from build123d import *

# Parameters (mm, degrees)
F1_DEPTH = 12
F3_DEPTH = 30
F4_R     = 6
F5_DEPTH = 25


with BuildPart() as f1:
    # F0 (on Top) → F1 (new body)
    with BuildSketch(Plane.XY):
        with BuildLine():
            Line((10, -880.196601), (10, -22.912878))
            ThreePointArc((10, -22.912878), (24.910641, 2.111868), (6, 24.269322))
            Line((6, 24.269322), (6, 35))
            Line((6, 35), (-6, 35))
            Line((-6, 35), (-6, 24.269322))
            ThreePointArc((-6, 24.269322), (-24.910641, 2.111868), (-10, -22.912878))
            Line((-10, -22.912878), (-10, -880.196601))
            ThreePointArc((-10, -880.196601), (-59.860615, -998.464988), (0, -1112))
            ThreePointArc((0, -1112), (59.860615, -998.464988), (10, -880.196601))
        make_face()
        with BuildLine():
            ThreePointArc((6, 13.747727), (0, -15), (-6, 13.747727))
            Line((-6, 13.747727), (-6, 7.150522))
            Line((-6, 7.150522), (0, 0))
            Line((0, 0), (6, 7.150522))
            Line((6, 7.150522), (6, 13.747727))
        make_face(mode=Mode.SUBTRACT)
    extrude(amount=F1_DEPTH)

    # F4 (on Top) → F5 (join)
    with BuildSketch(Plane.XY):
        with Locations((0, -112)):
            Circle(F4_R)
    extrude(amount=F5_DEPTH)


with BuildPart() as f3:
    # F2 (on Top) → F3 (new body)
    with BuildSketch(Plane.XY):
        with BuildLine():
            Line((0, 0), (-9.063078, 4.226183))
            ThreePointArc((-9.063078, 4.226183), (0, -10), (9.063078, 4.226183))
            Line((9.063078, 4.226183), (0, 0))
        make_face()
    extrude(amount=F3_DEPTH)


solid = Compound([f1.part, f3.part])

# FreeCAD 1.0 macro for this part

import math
import FreeCAD as App
import Part
import Sketcher
Q = App.Units.Quantity

doc = App.newDocument("Part")
params = doc.addObject("Spreadsheet::Sheet", "Params")
for row, (alias, value) in enumerate([
    ("sketch1_radius", "24.999999 mm"),
    ("sketch1_radius2", "150 mm"),
    ("sketch1_radius3", "15 mm"),
    ("sketch1_width", "12 mm"),
    ("pad1_length", "12 mm"),
    ("sketch2_diameter", "12 mm"),
    ("pad2_length", "25 mm"),
    ("sketch3_radius", "10 mm"),
    ("pad3_length", "30 mm"),
], start=1):
    params.set(f"A{row}", alias)
    params.set(f"B{row}", "=" + value)
    params.setAlias(f"B{row}", alias)

body = doc.addObject("PartDesign::Body", "Body")

sketch1 = body.newObject("Sketcher::SketchObject", "Sketch")
sketch1.AttachmentSupport = (doc.getObject("XY_Plane"), [""])
sketch1.MapMode = "FlatFace"
sketch1.addGeometry([
    Part.LineSegment(App.Vector(10, -880, 0), App.Vector(10, -23, 0)),
    Part.ArcOfCircle(Part.Circle(App.Vector(0, 0, 0), App.Vector(0, 0, 1), 25), math.radians(-66), math.radians(76)),
    Part.LineSegment(App.Vector(6, 24, 0), App.Vector(6, 35, 0)),
    Part.LineSegment(App.Vector(6, 35, 0), App.Vector(-6, 35, 0)),
    Part.LineSegment(App.Vector(-6, 35, 0), App.Vector(-6, 24, 0)),
    Part.ArcOfCircle(Part.Circle(App.Vector(0, 0, 0), App.Vector(0, 0, 1), 25), math.radians(104), math.radians(246)),
    Part.LineSegment(App.Vector(-10, -23, 0), App.Vector(-10, -880, 0)),
    Part.ArcOfCircle(Part.Circle(App.Vector(90, -992, 0), App.Vector(0, 0, 1), 150), math.radians(132), math.radians(233)),
    Part.ArcOfCircle(Part.Circle(App.Vector(-90, -992, 0), App.Vector(0, 0, 1), 150), math.radians(-53), math.radians(48)),
    Part.LineSegment(App.Vector(6, 7, 0), App.Vector(6, 14, 0)),
    Part.ArcOfCircle(Part.Circle(App.Vector(0, 0, 0), App.Vector(0, 0, 1), 15), math.radians(114), math.radians(426)),
    Part.LineSegment(App.Vector(-6, 14, 0), App.Vector(-6, 7, 0)),
    Part.LineSegment(App.Vector(-6, 7, 0), App.Vector(0, 0, 0)),
    Part.LineSegment(App.Vector(0, 0, 0), App.Vector(6, 7, 0)),
], False)
sketch1.addConstraint([
    Sketcher.Constraint("Coincident", 0, 2, 1, 1),
    Sketcher.Constraint("Coincident", 1, 2, 2, 1),
    Sketcher.Constraint("Coincident", 2, 2, 3, 1),
    Sketcher.Constraint("Coincident", 3, 2, 4, 1),
    Sketcher.Constraint("Coincident", 4, 2, 5, 1),
    Sketcher.Constraint("Coincident", 5, 2, 6, 1),
    Sketcher.Constraint("Coincident", 6, 2, 7, 1),
    Sketcher.Constraint("Coincident", 7, 2, 8, 1),
    Sketcher.Constraint("Coincident", 8, 2, 0, 1),
    Sketcher.Constraint("Coincident", 9, 2, 10, 2),
    Sketcher.Constraint("Coincident", 10, 1, 11, 1),
    Sketcher.Constraint("Coincident", 11, 2, 12, 1),
    Sketcher.Constraint("Coincident", 12, 2, 13, 1),
    Sketcher.Constraint("Coincident", 13, 2, 9, 1),
    Sketcher.Constraint("Vertical", 0),
    Sketcher.Constraint("Vertical", 2),
    Sketcher.Constraint("Horizontal", 3),
    Sketcher.Constraint("Vertical", 4),
    Sketcher.Constraint("Vertical", 6),
    Sketcher.Constraint("Vertical", 9),
    Sketcher.Constraint("Vertical", 11),
    Sketcher.Constraint("Coincident", 1, 3, -1, 1),
    Sketcher.Constraint("Coincident", 5, 3, -1, 1),
    Sketcher.Constraint("Coincident", 10, 3, -1, 1),
    Sketcher.Constraint("Coincident", 12, 2, -1, 1),
    Sketcher.Constraint("Equal", 1, 5),
    Sketcher.Constraint("Equal", 7, 8),
    Sketcher.Constraint("Symmetric", 7, 3, 8, 3, -2),
    Sketcher.Constraint("Symmetric", 11, 2, 13, 2, -2),
    Sketcher.Constraint("Horizontal", 1, 2, 4, 2),
    Sketcher.Constraint("Horizontal", 0, 2, 5, 2),
    Sketcher.Constraint("Vertical", 2, 2, 9, 2),
    Sketcher.Constraint("Radius", 1, 24.999999),
    Sketcher.Constraint("Radius", 7, 150.0),
    Sketcher.Constraint("Radius", 10, 15.0),
    Sketcher.Constraint("DistanceX", 3, 2, 3, 1, 12.0),
    Sketcher.Constraint("Angle", 12, Q("-50.000002 deg")),
    Sketcher.Constraint("DistanceX", -1, 1, 7, 3, 90.0),
    Sketcher.Constraint("DistanceY", 7, 3, -1, 1, 992.0),
    Sketcher.Constraint("DistanceX", -1, 1, 0, 2, 10.0),
    Sketcher.Constraint("DistanceY", -1, 1, 2, 2, 35.0),
])
sketch1.setExpression("Constraints[32]", "Params.sketch1_radius")
sketch1.setExpression("Constraints[33]", "Params.sketch1_radius2")
sketch1.setExpression("Constraints[34]", "Params.sketch1_radius3")
sketch1.setExpression("Constraints[35]", "Params.sketch1_width")
pad1 = body.newObject("PartDesign::Pad", "Pad")
pad1.Profile = sketch1
pad1.setExpression("Length", "Params.pad1_length")

sketch2 = body.newObject("Sketcher::SketchObject", "Sketch001")
sketch2.AttachmentSupport = (doc.getObject("XY_Plane"), [""])
sketch2.MapMode = "FlatFace"
sketch2.addGeometry(Part.Circle(App.Vector(0, -112, 0), App.Vector(0, 0, 1), 6), False)
sketch2.addConstraint([
    Sketcher.Constraint("PointOnObject", 0, 3, -2),
    Sketcher.Constraint("Diameter", 0, 12.0),
    Sketcher.Constraint("DistanceY", 0, 3, -1, 1, 112.0),
])
sketch2.setExpression("Constraints[1]", "Params.sketch2_diameter")
pad2 = body.newObject("PartDesign::Pad", "Pad001")
pad2.Profile = sketch2
pad2.setExpression("Length", "Params.pad2_length")
body2 = doc.addObject("PartDesign::Body", "Body001")

sketch3 = body2.newObject("Sketcher::SketchObject", "Sketch002")
sketch3.AttachmentSupport = (doc.getObject("XY_Plane001"), [""])
sketch3.MapMode = "FlatFace"
sketch3.addGeometry([
    Part.LineSegment(App.Vector(0, 0, 0), App.Vector(-9, 4, 0)),
    Part.ArcOfCircle(Part.Circle(App.Vector(0, 0, 0), App.Vector(0, 0, 1), 10), math.radians(155), math.radians(385)),
    Part.LineSegment(App.Vector(9, 4, 0), App.Vector(0, 0, 0)),
], False)
sketch3.addConstraint([
    Sketcher.Constraint("Coincident", 0, 2, 1, 1),
    Sketcher.Constraint("Coincident", 1, 2, 2, 1),
    Sketcher.Constraint("Coincident", 2, 2, 0, 1),
    Sketcher.Constraint("Coincident", 1, 3, -1, 1),
    Sketcher.Constraint("Coincident", 2, 2, -1, 1),
    Sketcher.Constraint("Horizontal", 0, 2, 1, 2),
    Sketcher.Constraint("Radius", 1, 10.0),
    Sketcher.Constraint("Angle", 0, Q("154.999998 deg")),
])
sketch3.setExpression("Constraints[6]", "Params.sketch3_radius")
pad3 = body2.newObject("PartDesign::Pad", "Pad002")
pad3.Profile = sketch3
pad3.setExpression("Length", "Params.pad3_length")

doc.recompute()
